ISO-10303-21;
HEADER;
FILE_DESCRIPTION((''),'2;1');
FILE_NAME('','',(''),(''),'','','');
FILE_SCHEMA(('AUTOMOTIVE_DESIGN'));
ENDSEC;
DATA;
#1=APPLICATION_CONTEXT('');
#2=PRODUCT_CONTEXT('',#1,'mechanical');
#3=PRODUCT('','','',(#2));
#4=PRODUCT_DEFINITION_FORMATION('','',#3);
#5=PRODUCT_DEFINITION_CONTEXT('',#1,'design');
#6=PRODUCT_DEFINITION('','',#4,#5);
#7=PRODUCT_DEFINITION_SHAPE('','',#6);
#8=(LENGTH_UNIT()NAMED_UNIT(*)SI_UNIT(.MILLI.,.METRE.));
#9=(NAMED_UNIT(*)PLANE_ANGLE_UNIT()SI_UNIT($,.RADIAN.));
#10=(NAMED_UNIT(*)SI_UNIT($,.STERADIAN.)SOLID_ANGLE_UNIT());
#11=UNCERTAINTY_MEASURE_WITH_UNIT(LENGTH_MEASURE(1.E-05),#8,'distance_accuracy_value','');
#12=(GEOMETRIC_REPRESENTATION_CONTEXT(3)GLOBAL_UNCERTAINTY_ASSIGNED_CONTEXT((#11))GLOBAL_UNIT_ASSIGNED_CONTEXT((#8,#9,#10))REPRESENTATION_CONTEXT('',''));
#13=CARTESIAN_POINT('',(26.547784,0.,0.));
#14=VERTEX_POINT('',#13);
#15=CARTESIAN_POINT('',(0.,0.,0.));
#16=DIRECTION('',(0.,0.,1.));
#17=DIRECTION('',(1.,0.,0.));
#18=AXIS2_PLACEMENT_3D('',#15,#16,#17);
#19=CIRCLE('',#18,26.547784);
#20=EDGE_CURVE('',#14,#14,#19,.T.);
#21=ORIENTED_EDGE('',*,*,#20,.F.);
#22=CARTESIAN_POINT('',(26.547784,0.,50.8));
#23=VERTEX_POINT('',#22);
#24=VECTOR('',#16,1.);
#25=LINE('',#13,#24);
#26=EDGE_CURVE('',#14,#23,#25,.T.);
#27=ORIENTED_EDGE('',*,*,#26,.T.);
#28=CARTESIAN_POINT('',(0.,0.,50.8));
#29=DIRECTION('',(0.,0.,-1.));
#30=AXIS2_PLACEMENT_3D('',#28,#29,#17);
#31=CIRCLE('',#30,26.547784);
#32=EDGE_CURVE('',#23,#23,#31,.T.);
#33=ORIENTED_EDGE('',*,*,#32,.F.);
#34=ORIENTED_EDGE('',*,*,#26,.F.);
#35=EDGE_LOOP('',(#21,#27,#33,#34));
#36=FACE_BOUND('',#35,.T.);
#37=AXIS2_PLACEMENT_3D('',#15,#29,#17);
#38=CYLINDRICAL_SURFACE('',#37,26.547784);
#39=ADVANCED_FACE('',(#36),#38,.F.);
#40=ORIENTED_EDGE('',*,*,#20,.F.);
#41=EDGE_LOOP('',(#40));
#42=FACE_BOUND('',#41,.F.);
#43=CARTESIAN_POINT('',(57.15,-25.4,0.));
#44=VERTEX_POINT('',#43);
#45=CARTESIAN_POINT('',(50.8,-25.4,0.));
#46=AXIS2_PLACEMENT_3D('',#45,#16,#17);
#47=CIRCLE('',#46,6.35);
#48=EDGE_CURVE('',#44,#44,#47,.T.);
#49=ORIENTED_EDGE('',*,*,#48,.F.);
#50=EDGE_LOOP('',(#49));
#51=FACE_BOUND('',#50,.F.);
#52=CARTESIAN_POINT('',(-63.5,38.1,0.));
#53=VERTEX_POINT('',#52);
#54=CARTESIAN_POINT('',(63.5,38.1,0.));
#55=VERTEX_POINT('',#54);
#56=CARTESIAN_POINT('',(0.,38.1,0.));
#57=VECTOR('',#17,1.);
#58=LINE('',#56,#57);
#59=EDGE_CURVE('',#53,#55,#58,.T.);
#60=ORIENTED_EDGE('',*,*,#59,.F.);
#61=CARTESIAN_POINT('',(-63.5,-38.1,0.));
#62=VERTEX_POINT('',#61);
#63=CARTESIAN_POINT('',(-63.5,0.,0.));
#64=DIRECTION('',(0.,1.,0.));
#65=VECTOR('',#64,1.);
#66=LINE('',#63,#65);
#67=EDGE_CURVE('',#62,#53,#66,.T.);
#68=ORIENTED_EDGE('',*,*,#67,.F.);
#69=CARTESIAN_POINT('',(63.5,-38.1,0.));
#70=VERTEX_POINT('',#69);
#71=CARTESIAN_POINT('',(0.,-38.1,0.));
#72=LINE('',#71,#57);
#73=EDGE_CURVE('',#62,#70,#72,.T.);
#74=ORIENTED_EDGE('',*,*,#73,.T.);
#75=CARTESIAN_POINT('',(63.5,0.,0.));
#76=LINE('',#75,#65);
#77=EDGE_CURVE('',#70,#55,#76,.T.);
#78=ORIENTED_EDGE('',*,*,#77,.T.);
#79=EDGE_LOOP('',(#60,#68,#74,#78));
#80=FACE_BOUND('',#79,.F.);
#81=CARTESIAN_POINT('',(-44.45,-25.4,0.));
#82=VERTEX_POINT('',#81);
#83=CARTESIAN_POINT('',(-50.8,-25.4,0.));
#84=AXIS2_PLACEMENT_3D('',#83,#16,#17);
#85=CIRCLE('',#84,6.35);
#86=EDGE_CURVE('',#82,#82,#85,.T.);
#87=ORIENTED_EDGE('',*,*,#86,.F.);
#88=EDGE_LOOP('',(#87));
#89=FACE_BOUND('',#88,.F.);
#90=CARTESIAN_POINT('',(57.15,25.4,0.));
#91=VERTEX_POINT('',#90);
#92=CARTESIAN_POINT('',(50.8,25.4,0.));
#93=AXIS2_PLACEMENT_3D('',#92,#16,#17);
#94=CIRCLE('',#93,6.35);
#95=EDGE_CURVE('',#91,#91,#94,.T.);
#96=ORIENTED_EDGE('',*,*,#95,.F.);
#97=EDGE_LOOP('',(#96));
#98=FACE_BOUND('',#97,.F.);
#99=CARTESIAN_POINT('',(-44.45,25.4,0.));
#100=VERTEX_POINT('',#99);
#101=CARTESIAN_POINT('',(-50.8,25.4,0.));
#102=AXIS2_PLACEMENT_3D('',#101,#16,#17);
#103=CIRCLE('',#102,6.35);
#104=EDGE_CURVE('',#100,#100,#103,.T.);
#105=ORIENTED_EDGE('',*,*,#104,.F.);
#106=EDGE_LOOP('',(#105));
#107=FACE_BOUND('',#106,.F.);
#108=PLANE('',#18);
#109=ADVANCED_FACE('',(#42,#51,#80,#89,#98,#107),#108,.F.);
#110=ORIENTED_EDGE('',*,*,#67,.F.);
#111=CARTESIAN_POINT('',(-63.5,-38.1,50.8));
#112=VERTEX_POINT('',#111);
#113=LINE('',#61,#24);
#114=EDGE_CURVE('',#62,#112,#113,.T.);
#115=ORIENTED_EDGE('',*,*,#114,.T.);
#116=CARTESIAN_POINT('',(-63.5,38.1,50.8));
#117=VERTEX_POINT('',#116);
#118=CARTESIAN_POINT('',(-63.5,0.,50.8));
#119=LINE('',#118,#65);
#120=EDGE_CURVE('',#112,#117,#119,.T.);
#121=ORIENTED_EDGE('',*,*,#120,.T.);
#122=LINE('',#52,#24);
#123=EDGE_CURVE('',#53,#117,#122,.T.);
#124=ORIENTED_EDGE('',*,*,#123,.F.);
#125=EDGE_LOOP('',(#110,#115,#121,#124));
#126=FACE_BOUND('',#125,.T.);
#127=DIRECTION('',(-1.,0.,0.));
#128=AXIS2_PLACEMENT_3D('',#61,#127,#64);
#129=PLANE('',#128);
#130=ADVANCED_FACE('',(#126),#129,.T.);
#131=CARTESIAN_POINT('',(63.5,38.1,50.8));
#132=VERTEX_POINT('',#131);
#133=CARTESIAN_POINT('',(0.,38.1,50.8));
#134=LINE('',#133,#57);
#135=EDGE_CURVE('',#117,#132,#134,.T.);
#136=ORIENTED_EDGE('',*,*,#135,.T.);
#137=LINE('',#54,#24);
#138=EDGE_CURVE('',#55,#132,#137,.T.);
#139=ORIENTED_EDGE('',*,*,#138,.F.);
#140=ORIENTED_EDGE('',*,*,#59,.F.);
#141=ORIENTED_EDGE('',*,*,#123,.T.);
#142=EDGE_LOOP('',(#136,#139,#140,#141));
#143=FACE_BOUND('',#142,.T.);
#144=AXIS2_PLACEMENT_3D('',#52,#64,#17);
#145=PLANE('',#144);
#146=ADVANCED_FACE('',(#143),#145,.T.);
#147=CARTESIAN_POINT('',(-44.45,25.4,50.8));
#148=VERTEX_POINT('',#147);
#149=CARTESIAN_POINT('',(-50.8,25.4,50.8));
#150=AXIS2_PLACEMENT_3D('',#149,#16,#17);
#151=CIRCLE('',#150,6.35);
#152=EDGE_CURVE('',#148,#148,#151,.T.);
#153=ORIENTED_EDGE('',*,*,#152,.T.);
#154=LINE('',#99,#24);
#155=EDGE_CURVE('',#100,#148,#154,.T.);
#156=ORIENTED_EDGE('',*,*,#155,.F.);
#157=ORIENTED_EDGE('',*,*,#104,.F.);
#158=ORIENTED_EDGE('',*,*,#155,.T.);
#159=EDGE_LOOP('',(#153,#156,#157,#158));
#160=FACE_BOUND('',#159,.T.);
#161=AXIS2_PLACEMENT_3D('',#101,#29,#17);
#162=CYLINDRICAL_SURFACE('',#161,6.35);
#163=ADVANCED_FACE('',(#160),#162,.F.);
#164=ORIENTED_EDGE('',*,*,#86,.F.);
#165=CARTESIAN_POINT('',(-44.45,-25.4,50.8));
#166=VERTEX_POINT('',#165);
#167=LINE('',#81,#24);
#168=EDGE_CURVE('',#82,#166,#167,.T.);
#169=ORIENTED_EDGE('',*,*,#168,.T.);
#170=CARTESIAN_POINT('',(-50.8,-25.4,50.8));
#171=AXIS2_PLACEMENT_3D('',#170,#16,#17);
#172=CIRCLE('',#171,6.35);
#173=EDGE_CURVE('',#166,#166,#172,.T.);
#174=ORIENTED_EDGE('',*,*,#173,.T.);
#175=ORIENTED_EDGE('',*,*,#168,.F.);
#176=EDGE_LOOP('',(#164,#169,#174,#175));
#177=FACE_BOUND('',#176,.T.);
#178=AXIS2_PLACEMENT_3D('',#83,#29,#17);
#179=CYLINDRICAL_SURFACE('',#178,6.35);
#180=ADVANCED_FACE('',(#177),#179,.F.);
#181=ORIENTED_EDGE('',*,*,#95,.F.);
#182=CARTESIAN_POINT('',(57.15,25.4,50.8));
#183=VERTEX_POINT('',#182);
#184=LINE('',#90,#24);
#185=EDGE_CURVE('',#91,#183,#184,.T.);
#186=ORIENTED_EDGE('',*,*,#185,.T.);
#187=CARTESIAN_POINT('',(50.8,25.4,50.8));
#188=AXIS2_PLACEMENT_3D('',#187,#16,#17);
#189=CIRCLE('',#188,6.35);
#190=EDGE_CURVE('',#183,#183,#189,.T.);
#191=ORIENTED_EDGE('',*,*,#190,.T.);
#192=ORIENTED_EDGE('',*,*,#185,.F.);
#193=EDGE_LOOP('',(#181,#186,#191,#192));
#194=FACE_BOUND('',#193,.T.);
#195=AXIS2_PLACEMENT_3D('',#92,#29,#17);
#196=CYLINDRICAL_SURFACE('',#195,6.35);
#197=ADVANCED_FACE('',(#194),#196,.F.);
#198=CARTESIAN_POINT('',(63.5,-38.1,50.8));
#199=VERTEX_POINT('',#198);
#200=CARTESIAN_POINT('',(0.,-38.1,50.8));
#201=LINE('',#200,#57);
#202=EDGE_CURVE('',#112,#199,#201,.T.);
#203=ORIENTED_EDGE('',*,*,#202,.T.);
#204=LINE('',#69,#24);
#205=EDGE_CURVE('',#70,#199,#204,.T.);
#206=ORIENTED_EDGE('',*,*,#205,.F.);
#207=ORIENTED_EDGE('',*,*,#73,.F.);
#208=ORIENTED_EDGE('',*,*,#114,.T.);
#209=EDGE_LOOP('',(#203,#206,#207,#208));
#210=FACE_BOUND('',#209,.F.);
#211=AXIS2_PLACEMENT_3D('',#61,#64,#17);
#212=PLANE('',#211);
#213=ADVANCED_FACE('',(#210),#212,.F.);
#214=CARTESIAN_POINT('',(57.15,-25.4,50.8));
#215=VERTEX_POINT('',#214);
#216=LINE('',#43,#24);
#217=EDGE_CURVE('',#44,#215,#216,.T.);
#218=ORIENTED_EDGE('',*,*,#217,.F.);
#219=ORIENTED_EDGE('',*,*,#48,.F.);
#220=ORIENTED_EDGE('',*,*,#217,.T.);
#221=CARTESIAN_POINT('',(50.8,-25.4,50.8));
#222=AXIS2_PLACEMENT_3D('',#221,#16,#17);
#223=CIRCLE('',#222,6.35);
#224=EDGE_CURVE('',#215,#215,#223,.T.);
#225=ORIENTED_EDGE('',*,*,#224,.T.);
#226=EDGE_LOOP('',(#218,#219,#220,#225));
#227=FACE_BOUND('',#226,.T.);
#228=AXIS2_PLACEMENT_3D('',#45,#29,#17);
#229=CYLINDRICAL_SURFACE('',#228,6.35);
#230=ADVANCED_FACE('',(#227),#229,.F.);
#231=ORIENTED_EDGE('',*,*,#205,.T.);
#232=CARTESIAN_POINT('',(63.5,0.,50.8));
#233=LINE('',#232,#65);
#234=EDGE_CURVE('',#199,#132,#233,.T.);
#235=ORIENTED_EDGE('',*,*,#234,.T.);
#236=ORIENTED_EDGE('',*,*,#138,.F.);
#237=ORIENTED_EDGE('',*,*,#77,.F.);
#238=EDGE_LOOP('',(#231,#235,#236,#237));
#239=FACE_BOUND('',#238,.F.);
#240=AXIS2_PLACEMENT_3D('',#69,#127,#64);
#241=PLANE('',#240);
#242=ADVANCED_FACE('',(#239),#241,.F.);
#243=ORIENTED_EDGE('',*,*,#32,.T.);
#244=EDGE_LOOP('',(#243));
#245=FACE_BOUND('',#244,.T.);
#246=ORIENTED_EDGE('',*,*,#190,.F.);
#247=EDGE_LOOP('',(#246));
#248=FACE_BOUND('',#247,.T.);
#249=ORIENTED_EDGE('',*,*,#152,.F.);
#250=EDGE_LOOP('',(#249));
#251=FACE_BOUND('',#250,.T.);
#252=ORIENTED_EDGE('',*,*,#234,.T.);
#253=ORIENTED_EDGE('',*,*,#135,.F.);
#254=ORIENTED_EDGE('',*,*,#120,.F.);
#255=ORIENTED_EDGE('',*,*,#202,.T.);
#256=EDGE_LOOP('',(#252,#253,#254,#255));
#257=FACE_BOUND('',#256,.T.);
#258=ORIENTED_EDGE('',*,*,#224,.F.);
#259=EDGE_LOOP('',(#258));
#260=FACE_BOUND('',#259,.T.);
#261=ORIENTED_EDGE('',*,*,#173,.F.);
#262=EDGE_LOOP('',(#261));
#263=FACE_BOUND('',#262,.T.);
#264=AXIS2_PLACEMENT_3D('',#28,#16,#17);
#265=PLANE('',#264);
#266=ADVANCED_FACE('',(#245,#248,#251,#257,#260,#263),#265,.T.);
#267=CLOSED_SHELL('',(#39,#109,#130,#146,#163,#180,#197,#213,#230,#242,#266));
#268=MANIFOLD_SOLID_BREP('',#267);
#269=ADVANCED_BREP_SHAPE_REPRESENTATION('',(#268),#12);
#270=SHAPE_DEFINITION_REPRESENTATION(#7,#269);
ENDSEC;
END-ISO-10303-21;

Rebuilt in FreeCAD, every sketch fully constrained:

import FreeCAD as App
import Part
import Sketcher
Q = App.Units.Quantity

doc = App.newDocument("Part")
body = doc.addObject("PartDesign::Body", "Body")

sketch1 = body.newObject("Sketcher::SketchObject", "Sketch")
sketch1.AttachmentSupport = (doc.getObject("XY_Plane"), [""])
sketch1.MapMode = "FlatFace"
sketch1.addGeometry([
    Part.LineSegment(App.Vector(-64, 38, 0), App.Vector(-64, -38, 0)),
    Part.LineSegment(App.Vector(-64, -38, 0), App.Vector(64, -38, 0)),
    Part.LineSegment(App.Vector(64, -38, 0), App.Vector(64, 38, 0)),
    Part.LineSegment(App.Vector(64, 38, 0), App.Vector(-64, 38, 0)),
    Part.Circle(App.Vector(-51, -25, 0), App.Vector(0, 0, 1), 6),
    Part.Circle(App.Vector(51, -25, 0), App.Vector(0, 0, 1), 6),
    Part.Circle(App.Vector(-51, 25, 0), App.Vector(0, 0, 1), 6),
    Part.Circle(App.Vector(51, 25, 0), App.Vector(0, 0, 1), 6),
], False)
sketch1.addConstraint([
    Sketcher.Constraint("Coincident", 0, 2, 1, 1),
    Sketcher.Constraint("Coincident", 1, 2, 2, 1),
    Sketcher.Constraint("Coincident", 2, 2, 3, 1),
    Sketcher.Constraint("Coincident", 3, 2, 0, 1),
    Sketcher.Constraint("Vertical", 0),
    Sketcher.Constraint("Horizontal", 1),
    Sketcher.Constraint("Vertical", 2),
    Sketcher.Constraint("Horizontal", 3),
    Sketcher.Constraint("Equal", 4, 5),
    Sketcher.Constraint("Equal", 5, 6),
    Sketcher.Constraint("Equal", 6, 7),
    Sketcher.Constraint("Symmetric", 5, 3, 6, 3, -1, 1),
    Sketcher.Constraint("Symmetric", 4, 3, 7, 3, -1, 1),
    Sketcher.Constraint("Symmetric", 0, 2, 2, 2, -1, 1),
    Sketcher.Constraint("Symmetric", 4, 3, 5, 3, -2),
    Sketcher.Constraint("Diameter", 4, Q("0.5 in")),
    Sketcher.Constraint("DistanceX", 1, 1, 1, 2, Q("5 in")),
    Sketcher.Constraint("DistanceY", 0, 2, 0, 1, Q("3 in")),
    Sketcher.Constraint("DistanceX", 4, 3, -1, 1, Q("2 in")),
    Sketcher.Constraint("DistanceY", 4, 3, -1, 1, Q("1 in")),
])
pad1 = body.newObject("PartDesign::Pad", "Pad")
pad1.Profile = sketch1
pad1.Length = Q("2 in")

sketch2 = body.newObject("Sketcher::SketchObject", "Sketch001")
sketch2.AttachmentSupport = (doc.getObject("XY_Plane"), [""])
sketch2.MapMode = "FlatFace"
sketch2.addGeometry(Part.Circle(App.Vector(0, 0, 0), App.Vector(0, 0, 1), 27), False)
sketch2.addConstraint([
    Sketcher.Constraint("Coincident", 0, 3, -1, 1),
    Sketcher.Constraint("Diameter", 0, Q("53.095568 mm")),
])
pocket1 = body.newObject("PartDesign::Pocket", "Pocket")
pocket1.Profile = sketch2
pocket1.Type = "ThroughAll"
pocket1.Reversed = True

doc.recompute()
